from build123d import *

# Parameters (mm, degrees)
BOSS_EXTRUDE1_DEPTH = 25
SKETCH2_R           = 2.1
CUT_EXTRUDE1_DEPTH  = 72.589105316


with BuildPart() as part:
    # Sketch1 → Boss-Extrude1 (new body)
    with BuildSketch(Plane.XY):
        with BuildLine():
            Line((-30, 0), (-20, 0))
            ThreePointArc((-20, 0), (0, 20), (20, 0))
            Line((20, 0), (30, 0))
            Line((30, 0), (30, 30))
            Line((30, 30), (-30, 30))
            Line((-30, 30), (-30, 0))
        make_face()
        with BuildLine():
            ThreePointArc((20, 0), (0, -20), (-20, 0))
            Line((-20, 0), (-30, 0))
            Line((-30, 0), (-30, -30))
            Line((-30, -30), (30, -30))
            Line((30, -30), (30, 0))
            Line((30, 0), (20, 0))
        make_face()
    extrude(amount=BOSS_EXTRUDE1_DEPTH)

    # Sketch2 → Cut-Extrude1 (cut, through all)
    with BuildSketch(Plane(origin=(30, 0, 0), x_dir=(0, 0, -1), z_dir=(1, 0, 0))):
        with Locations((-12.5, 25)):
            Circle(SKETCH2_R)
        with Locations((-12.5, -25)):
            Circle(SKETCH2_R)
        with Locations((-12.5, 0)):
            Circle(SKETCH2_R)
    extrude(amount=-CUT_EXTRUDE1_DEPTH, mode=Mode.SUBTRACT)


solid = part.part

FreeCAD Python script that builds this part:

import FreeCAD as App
import Part
import Sketcher
from FreeCAD import Vector


def add_polygon(sketch, points):
    """Adds a closed chain of lines whose ends are joined by coincident constraints."""
    first, n = sketch.GeometryCount, len(points)
    for a, b in zip(points, points[1:] + points[:1]):
        sketch.addGeometry(Part.LineSegment(App.Vector(*a, 0), App.Vector(*b, 0)), False)
    for i in range(n):
        sketch.addConstraint(Sketcher.Constraint("Coincident", first + i, 2, first + (i + 1) % n, 1))

doc = App.newDocument("Part")
body = doc.addObject("PartDesign::Body", "Body")

# Sketch on XY plane
sketch1 = body.newObject("Sketcher::SketchObject", "Sketch")
sketch1.AttachmentSupport = (doc.getObject("XY_Plane"), [""])
sketch1.MapMode = "FlatFace"
add_polygon(sketch1, [(30, 30), (-30, 30), (-30, -30), (30, -30)])  # lines 0-3
sketch1.addGeometry(Part.Circle(Vector(0, 0, 0), Vector(0, 0, 1), 20), False)  # 4
sketch1.addConstraint(Sketcher.Constraint("Horizontal", 0))
sketch1.addConstraint(Sketcher.Constraint("Vertical", 1))
sketch1.addConstraint(Sketcher.Constraint("Horizontal", 2))
sketch1.addConstraint(Sketcher.Constraint("Vertical", 3))
sketch1.addConstraint(Sketcher.Constraint("Coincident", 4, 3, -1, 1))
sketch1.addConstraint(Sketcher.Constraint("Symmetric", 0, 2, 2, 2, -1, 1))
sketch1.addConstraint(Sketcher.Constraint("Equal", 2, 1))
sketch1.addConstraint(Sketcher.Constraint("Diameter", 4, 40.0))
sketch1.addConstraint(Sketcher.Constraint("DistanceX", 0, 2, 0, 1, 60.0))
pad1 = body.newObject("PartDesign::Pad", "Pad")
pad1.Profile = sketch1
pad1.Length = 25

# Sketch on YZ plane
sketch2 = body.newObject("Sketcher::SketchObject", "Sketch001")
sketch2.AttachmentSupport = (doc.getObject("YZ_Plane"), [""])
sketch2.MapMode = "FlatFace"
sketch2.AttachmentOffset = App.Placement(Vector(0, 0, 30), App.Rotation())
sketch2.addGeometry(Part.Circle(Vector(25, 12.5, 0), Vector(0, 0, 1), 2.1), False)
sketch2.addGeometry(Part.Circle(Vector(-25, 12.5, 0), Vector(0, 0, 1), 2.1), False)
sketch2.addGeometry(Part.Circle(Vector(0, 12.5, 0), Vector(0, 0, 1), 2.1), False)
sketch2.addConstraint(Sketcher.Constraint("Equal", 0, 1))
sketch2.addConstraint(Sketcher.Constraint("Equal", 1, 2))
sketch2.addConstraint(Sketcher.Constraint("Symmetric", 0, 3, 1, 3, -2))
sketch2.addConstraint(Sketcher.Constraint("PointOnObject", 2, 3, -2))
sketch2.addConstraint(Sketcher.Constraint("Horizontal", 1, 3, 2, 3))
sketch2.addConstraint(Sketcher.Constraint("Diameter", 0, 4.2))
sketch2.addConstraint(Sketcher.Constraint("DistanceX", -1, 1, 0, 3, 25.0))
sketch2.addConstraint(Sketcher.Constraint("DistanceY", -1, 1, 0, 3, 12.5))
pocket1 = body.newObject("PartDesign::Pocket", "Pocket")
pocket1.Profile = sketch2
pocket1.Type = "ThroughAll"

doc.recompute()
